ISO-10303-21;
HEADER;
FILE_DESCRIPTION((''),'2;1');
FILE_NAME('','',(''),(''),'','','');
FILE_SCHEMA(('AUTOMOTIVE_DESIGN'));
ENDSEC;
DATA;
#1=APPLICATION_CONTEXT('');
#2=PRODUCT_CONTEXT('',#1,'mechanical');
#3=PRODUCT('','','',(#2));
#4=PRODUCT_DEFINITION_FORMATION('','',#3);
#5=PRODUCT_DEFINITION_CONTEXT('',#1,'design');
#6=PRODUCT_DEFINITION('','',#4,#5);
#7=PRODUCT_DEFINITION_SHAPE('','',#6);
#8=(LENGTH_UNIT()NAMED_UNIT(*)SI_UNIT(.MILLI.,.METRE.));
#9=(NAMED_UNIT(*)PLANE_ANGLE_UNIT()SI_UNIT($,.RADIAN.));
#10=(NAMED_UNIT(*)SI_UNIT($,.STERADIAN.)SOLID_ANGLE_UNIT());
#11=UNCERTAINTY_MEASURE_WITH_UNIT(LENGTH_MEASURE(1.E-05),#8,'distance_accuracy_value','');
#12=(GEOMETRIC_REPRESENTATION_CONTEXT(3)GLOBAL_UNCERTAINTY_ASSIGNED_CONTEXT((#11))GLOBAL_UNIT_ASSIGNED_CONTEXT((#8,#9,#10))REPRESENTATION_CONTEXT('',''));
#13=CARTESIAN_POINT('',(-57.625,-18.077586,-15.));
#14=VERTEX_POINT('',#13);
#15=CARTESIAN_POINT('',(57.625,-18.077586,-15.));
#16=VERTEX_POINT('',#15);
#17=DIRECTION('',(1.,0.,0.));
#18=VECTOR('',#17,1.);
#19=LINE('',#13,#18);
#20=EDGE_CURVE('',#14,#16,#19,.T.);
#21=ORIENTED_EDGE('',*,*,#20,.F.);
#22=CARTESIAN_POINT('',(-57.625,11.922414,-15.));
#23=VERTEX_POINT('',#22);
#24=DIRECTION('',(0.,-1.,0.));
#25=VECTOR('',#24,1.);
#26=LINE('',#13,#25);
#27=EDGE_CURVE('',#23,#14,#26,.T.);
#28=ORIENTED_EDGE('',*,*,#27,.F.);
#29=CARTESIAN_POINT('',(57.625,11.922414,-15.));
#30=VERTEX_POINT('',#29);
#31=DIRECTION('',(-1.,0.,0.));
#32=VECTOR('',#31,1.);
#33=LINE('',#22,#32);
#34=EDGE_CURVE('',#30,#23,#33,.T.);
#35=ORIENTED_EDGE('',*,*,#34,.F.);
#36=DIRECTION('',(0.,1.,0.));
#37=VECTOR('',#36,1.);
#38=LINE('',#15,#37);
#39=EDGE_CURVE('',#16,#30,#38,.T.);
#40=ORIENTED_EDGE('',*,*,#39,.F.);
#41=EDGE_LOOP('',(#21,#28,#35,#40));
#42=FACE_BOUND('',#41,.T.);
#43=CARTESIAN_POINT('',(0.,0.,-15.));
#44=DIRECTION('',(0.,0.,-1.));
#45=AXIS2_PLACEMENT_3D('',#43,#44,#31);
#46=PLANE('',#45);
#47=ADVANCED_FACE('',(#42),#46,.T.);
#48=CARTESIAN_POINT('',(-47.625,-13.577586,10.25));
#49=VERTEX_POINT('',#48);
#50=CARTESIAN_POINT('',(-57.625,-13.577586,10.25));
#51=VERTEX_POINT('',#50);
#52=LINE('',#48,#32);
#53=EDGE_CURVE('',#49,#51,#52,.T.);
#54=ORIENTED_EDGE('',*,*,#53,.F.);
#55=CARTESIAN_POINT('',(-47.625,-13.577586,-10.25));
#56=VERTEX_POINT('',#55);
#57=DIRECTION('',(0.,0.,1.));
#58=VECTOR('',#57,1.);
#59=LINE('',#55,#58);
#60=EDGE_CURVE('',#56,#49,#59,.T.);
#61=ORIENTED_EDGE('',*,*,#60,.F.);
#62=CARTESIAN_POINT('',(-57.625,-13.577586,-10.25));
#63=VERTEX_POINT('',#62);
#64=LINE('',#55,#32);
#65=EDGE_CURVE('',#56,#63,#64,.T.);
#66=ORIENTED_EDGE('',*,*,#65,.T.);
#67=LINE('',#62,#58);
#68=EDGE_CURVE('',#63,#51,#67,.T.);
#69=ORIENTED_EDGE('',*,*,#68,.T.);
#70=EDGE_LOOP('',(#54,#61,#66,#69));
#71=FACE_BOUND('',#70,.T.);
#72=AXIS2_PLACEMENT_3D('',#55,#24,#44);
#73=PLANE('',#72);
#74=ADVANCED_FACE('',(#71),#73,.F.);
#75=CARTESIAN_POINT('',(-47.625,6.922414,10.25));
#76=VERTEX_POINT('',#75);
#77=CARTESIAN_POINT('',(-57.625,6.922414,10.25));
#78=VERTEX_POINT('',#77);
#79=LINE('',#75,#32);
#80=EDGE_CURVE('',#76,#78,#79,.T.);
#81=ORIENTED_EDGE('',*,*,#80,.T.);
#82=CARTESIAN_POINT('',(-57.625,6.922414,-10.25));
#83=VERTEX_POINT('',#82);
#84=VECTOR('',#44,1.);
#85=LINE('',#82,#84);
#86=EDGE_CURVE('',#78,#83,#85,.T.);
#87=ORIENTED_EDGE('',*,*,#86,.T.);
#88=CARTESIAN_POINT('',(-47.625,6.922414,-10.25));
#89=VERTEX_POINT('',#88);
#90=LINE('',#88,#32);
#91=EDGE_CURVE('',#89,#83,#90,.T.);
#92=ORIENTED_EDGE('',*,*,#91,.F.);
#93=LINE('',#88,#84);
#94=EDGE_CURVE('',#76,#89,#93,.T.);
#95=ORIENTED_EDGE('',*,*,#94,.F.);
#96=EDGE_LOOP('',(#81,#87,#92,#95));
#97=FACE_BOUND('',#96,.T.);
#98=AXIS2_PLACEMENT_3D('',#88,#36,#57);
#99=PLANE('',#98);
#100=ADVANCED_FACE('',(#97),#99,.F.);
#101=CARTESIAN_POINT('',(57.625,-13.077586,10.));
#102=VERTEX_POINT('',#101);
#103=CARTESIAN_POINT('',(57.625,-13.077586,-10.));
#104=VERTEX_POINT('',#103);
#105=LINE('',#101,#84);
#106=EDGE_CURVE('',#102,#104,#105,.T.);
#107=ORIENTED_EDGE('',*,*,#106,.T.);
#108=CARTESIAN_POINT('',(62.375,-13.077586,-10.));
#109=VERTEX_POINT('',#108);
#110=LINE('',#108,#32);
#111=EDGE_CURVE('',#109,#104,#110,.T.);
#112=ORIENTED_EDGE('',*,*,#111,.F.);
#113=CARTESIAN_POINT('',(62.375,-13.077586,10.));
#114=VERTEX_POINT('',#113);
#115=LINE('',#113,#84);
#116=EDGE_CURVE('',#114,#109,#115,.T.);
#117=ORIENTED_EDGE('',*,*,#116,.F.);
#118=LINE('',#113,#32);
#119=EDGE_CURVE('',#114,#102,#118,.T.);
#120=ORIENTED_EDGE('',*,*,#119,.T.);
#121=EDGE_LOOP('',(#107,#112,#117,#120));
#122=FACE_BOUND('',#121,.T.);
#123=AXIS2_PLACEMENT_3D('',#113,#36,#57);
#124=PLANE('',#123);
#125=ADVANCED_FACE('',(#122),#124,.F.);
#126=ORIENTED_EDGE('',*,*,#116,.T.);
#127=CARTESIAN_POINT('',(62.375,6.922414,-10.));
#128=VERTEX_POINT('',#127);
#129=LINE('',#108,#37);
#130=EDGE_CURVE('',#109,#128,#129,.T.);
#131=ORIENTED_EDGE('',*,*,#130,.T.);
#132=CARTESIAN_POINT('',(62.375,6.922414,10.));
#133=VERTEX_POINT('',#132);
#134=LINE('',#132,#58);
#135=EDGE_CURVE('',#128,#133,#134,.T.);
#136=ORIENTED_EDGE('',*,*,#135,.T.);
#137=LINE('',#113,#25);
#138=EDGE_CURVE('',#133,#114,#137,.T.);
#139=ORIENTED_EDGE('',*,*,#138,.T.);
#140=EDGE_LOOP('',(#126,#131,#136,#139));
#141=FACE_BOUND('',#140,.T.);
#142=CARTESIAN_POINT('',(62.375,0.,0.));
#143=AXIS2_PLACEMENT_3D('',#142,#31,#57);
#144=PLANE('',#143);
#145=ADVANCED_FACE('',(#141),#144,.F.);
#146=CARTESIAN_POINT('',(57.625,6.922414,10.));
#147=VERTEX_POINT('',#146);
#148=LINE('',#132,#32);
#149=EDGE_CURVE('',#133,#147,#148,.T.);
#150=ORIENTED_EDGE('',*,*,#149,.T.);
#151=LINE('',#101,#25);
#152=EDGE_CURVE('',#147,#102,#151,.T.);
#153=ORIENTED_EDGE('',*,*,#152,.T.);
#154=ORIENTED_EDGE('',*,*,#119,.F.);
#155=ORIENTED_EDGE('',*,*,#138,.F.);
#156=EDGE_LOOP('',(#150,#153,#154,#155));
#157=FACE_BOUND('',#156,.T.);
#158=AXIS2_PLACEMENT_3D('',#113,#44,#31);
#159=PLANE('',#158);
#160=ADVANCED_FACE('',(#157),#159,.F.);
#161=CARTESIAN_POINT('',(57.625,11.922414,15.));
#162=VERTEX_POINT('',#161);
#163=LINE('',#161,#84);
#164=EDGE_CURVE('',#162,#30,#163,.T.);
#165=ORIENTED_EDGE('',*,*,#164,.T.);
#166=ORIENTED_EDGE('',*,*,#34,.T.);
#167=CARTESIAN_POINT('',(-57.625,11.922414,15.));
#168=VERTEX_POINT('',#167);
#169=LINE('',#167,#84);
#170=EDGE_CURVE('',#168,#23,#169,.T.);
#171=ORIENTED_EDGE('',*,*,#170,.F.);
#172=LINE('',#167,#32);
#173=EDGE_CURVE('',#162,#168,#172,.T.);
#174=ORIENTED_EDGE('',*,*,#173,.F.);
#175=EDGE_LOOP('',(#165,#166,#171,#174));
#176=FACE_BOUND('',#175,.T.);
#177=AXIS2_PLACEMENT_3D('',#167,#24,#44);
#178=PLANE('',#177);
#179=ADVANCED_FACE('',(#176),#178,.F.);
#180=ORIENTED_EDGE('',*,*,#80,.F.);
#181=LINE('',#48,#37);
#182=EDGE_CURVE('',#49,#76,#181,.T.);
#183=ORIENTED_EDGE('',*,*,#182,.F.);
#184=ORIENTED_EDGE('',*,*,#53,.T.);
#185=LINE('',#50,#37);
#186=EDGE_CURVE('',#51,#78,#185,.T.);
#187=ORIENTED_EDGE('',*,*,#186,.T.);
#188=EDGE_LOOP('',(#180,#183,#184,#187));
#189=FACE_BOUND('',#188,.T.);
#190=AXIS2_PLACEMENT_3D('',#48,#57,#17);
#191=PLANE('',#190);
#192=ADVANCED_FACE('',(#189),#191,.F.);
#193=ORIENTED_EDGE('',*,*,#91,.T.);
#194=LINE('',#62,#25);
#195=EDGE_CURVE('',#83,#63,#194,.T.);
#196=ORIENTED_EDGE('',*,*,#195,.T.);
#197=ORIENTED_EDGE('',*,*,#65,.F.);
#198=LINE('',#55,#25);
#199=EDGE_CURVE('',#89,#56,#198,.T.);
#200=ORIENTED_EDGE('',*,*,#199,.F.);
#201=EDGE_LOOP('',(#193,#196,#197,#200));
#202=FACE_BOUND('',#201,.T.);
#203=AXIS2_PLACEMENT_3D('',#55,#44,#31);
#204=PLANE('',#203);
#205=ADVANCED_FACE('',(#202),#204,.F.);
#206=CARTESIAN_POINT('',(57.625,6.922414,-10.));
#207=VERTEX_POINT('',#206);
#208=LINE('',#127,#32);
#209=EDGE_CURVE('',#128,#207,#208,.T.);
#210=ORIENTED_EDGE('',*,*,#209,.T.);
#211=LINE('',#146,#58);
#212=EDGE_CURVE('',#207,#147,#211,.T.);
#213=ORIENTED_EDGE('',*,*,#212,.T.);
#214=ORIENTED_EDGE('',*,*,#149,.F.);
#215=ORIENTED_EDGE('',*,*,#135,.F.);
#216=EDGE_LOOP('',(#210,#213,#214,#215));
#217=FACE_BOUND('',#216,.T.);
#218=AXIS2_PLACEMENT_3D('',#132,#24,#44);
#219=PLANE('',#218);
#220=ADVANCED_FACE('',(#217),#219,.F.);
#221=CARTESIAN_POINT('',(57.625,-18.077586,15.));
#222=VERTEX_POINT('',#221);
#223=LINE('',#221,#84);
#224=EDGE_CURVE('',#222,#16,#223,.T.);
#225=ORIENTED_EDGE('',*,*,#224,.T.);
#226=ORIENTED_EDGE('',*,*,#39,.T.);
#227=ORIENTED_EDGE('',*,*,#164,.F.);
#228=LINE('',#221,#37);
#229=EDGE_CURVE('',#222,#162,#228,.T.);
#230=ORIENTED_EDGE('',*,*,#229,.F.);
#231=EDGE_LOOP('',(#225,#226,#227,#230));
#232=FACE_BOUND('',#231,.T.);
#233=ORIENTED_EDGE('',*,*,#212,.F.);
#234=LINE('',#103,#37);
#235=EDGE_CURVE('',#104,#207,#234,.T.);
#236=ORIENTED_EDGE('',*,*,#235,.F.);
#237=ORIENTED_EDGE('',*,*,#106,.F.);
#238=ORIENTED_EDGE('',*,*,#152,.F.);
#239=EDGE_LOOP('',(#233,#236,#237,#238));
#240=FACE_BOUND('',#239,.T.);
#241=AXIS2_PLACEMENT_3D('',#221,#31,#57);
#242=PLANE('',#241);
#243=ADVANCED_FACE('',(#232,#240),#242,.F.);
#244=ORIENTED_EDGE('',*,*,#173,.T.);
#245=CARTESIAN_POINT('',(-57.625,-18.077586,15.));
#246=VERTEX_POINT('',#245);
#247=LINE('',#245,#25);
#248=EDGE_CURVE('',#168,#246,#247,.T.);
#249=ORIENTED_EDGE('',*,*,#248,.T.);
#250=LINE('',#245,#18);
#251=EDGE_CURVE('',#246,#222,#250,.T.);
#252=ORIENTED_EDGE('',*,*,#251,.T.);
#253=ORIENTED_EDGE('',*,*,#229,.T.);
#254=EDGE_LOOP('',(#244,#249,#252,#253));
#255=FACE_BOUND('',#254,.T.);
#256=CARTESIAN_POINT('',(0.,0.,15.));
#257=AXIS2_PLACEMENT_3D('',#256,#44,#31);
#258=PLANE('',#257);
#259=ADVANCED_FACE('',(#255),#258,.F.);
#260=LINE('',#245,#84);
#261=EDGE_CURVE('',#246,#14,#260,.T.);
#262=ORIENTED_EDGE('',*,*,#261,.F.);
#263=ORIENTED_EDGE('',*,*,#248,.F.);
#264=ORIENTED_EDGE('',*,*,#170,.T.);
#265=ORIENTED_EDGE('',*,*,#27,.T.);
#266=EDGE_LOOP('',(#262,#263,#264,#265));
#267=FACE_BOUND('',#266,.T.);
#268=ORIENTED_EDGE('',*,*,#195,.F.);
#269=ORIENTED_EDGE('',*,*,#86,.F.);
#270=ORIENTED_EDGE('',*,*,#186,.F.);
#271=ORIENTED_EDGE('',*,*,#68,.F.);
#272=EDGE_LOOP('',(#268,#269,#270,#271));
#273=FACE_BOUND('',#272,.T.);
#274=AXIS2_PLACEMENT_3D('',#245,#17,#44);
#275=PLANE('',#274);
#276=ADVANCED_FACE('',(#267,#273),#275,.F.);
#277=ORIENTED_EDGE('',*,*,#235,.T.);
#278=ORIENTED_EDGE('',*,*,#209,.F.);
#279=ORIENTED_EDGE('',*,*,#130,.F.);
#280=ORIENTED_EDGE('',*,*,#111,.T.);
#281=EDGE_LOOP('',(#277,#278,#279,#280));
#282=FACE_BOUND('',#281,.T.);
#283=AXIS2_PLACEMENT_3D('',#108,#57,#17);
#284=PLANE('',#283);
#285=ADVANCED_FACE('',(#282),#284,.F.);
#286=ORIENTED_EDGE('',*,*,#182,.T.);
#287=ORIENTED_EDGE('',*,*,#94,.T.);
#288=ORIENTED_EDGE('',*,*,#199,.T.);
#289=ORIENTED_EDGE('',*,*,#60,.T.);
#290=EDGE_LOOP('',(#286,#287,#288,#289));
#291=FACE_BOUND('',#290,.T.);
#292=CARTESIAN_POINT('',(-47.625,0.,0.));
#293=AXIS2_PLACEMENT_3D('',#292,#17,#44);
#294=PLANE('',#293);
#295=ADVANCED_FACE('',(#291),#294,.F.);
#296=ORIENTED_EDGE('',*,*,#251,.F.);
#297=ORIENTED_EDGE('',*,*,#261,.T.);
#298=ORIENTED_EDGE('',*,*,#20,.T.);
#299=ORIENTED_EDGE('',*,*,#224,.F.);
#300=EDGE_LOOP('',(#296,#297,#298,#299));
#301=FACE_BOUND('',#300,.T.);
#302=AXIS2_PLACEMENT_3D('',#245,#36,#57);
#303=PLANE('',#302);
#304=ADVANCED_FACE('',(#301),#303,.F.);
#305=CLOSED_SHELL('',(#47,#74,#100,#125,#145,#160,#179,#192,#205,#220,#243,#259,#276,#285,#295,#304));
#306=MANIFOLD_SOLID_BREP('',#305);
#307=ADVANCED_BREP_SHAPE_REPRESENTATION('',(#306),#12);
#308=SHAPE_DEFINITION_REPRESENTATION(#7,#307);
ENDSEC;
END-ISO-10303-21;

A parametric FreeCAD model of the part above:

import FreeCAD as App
import Part
import Sketcher
from FreeCAD import Vector
Q = App.Units.Quantity

doc = App.newDocument("Part")
body = doc.addObject("PartDesign::Body", "Body")

# Sketch on XY plane
sketch1 = body.newObject("Sketcher::SketchObject", "Sketch")
sketch1.AttachmentSupport = (doc.getObject("XY_Plane"), [""])
sketch1.MapMode = "FlatFace"
sketch1.addGeometry([
    Part.LineSegment(Vector(-58, 12, 0), Vector(-58, -18, 0)),
    Part.LineSegment(Vector(-58, -18, 0), Vector(58, -18, 0)),
    Part.LineSegment(Vector(58, -18, 0), Vector(58, 12, 0)),
    Part.LineSegment(Vector(58, 12, 0), Vector(-58, 12, 0)),
], False)
sketch1.addConstraint([
    Sketcher.Constraint("Coincident", 0, 2, 1, 1),
    Sketcher.Constraint("Coincident", 1, 2, 2, 1),
    Sketcher.Constraint("Coincident", 2, 2, 3, 1),
    Sketcher.Constraint("Coincident", 3, 2, 0, 1),
    Sketcher.Constraint("Vertical", 0),
    Sketcher.Constraint("Horizontal", 1),
    Sketcher.Constraint("Vertical", 2),
    Sketcher.Constraint("Horizontal", 3),
    Sketcher.Constraint("DistanceY", 0, 2, 0, 1, Q("30 mm")),
    Sketcher.Constraint("DistanceX", 1, 1, 1, 2, Q("115.25 mm")),
    Sketcher.Constraint("DistanceX", 0, 2, -1, 1, Q("57.625 mm")),
    Sketcher.Constraint("DistanceY", 0, 2, -1, 1, Q("18.077586 mm")),
])
pad1 = body.newObject("PartDesign::Pad", "Pad")
pad1.Profile = sketch1
pad1.Length = 30
pad1.Midplane = True

# Sketch on YZ plane
sketch2 = body.newObject("Sketcher::SketchObject", "Sketch001")
sketch2.AttachmentSupport = (doc.getObject("YZ_Plane"), [""])
sketch2.MapMode = "FlatFace"
sketch2.AttachmentOffset = App.Placement(Vector(0, 0, -57.625), App.Rotation())
sketch2.addGeometry([
    Part.LineSegment(Vector(7, -10, 0), Vector(-14, -10, 0)),
    Part.LineSegment(Vector(-14, -10, 0), Vector(-14, 10, 0)),
    Part.LineSegment(Vector(-14, 10, 0), Vector(7, 10, 0)),
    Part.LineSegment(Vector(7, 10, 0), Vector(7, -10, 0)),
], False)
sketch2.addConstraint([
    Sketcher.Constraint("Coincident", 0, 2, 1, 1),
    Sketcher.Constraint("Coincident", 1, 2, 2, 1),
    Sketcher.Constraint("Coincident", 2, 2, 3, 1),
    Sketcher.Constraint("Coincident", 3, 2, 0, 1),
    Sketcher.Constraint("Horizontal", 0),
    Sketcher.Constraint("Vertical", 1),
    Sketcher.Constraint("Horizontal", 2),
    Sketcher.Constraint("Vertical", 3),
    Sketcher.Constraint("Equal", 2, 1),
    Sketcher.Constraint("DistanceX", 0, 2, 0, 1, Q("20.5 mm")),
    Sketcher.Constraint("DistanceY", 0, 2, -1, 1, Q("10.25 mm")),
    Sketcher.Constraint("DistanceX", 0, 2, -1, 1, Q("13.577586 mm")),
])
pocket1 = body.newObject("PartDesign::Pocket", "Pocket")
pocket1.Profile = sketch2
pocket1.Length = 10
pocket1.Reversed = True

# Sketch on YZ plane
sketch3 = body.newObject("Sketcher::SketchObject", "Sketch002")
sketch3.AttachmentSupport = (doc.getObject("YZ_Plane"), [""])
sketch3.MapMode = "FlatFace"
sketch3.AttachmentOffset = App.Placement(Vector(0, 0, 57.625), App.Rotation())
sketch3.addGeometry([
    Part.LineSegment(Vector(7, 10, 0), Vector(-13, 10, 0)),
    Part.LineSegment(Vector(-13, 10, 0), Vector(-13, -10, 0)),
    Part.LineSegment(Vector(-13, -10, 0), Vector(7, -10, 0)),
    Part.LineSegment(Vector(7, -10, 0), Vector(7, 10, 0)),
], False)
sketch3.addConstraint([
    Sketcher.Constraint("Coincident", 0, 2, 1, 1),
    Sketcher.Constraint("Coincident", 1, 2, 2, 1),
    Sketcher.Constraint("Coincident", 2, 2, 3, 1),
    Sketcher.Constraint("Coincident", 3, 2, 0, 1),
    Sketcher.Constraint("Horizontal", 0),
    Sketcher.Constraint("Vertical", 1),
    Sketcher.Constraint("Horizontal", 2),
    Sketcher.Constraint("Vertical", 3),
    Sketcher.Constraint("Equal", 2, 1),
    Sketcher.Constraint("DistanceX", 0, 2, 0, 1, Q("20 mm")),
    Sketcher.Constraint("DistanceY", -1, 1, 0, 2, Q("10 mm")),
    Sketcher.Constraint("DistanceX", 0, 2, -1, 1, Q("13.077586 mm")),
])
pad2 = body.newObject("PartDesign::Pad", "Pad001")
pad2.Profile = sketch3
pad2.Length = 4.75

doc.recompute()
